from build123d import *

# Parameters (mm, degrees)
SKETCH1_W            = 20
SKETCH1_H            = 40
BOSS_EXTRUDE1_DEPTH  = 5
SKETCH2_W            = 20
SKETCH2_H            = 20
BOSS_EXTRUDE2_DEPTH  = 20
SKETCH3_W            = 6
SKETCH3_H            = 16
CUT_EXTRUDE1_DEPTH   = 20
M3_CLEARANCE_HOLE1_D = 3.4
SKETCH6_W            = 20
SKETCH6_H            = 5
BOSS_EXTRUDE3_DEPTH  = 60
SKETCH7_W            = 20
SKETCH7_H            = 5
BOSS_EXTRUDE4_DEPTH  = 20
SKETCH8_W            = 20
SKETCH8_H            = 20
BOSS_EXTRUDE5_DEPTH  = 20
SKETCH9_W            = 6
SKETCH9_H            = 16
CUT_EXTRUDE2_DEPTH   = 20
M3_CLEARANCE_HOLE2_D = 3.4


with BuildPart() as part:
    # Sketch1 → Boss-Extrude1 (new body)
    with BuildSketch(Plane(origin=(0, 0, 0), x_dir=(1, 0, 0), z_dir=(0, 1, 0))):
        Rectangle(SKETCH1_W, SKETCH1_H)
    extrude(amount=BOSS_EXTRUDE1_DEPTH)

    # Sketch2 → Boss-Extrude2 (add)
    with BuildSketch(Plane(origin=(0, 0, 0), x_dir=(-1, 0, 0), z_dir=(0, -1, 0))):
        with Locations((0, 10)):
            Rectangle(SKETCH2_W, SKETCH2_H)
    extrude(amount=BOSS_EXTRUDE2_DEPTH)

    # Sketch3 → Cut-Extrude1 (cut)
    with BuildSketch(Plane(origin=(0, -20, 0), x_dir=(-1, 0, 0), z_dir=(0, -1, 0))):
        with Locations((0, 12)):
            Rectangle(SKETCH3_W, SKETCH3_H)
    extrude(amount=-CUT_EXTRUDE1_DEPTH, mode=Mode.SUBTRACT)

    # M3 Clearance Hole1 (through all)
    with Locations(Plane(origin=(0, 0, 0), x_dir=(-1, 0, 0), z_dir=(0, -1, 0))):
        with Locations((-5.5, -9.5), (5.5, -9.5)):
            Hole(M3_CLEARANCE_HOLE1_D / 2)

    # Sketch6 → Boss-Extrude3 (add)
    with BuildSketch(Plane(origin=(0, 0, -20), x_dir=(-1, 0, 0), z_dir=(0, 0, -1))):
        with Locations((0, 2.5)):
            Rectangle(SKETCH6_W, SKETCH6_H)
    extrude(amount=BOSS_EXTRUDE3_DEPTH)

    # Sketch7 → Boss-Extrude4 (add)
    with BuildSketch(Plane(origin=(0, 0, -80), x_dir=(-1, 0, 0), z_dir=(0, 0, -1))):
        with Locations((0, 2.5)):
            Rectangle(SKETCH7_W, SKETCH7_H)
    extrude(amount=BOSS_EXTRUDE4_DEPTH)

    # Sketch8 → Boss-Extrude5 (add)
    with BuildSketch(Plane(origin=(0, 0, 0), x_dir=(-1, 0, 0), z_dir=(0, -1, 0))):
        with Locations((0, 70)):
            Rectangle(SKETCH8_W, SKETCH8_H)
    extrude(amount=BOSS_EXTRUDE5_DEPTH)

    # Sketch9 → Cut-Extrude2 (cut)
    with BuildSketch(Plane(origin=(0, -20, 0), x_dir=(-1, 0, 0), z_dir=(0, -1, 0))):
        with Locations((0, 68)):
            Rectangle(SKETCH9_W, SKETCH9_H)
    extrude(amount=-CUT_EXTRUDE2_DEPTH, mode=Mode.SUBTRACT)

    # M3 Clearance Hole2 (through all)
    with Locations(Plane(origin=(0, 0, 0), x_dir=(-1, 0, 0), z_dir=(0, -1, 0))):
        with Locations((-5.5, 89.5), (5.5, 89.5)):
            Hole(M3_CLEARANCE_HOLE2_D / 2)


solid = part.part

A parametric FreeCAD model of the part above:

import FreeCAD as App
import Part
import Sketcher
Q = App.Units.Quantity


def add_polygon(sketch, points):
    """Adds a closed chain of lines whose ends are joined by coincident constraints."""
    first, n = sketch.GeometryCount, len(points)
    for a, b in zip(points, points[1:] + points[:1]):
        sketch.addGeometry(Part.LineSegment(App.Vector(*a, 0), App.Vector(*b, 0)), False)
    for i in range(n):
        sketch.addConstraint(Sketcher.Constraint("Coincident", first + i, 2, first + (i + 1) % n, 1))

doc = App.newDocument("Part")
body = doc.addObject("PartDesign::Body", "Body")

# Sketch on XZ plane
sketch1 = body.newObject("Sketcher::SketchObject", "Sketch")
sketch1.AttachmentSupport = (doc.getObject("XZ_Plane"), [""])
sketch1.MapMode = "FlatFace"
add_polygon(sketch1, [(-10, -20), (-10, 20), (10, 20), (10, -20)])  # lines 0-3
sketch1.addConstraint([
    Sketcher.Constraint("Vertical", 0),
    Sketcher.Constraint("Horizontal", 1),
    Sketcher.Constraint("Vertical", 2),
    Sketcher.Constraint("Horizontal", 3),
    Sketcher.Constraint("Symmetric", 0, 2, 2, 2, -1, 1),
    Sketcher.Constraint("DistanceX", 1, 1, 1, 2, Q("20 mm")),
    Sketcher.Constraint("DistanceY", 0, 1, 0, 2, Q("40 mm")),
])
pad1 = body.newObject("PartDesign::Pad", "Pad")
pad1.Profile = sketch1
pad1.Length = 5
pad1.Reversed = True

# Sketch on XZ plane
sketch2 = body.newObject("Sketcher::SketchObject", "Sketch001")
sketch2.AttachmentSupport = (doc.getObject("XZ_Plane"), [""])
sketch2.MapMode = "FlatFace"
add_polygon(sketch2, [(10, -20), (10, 0), (-10, 0), (-10, -20)])  # lines 0-3
sketch2.addConstraint([
    Sketcher.Constraint("Vertical", 0),
    Sketcher.Constraint("Horizontal", 1),
    Sketcher.Constraint("Vertical", 2),
    Sketcher.Constraint("Horizontal", 3),
    Sketcher.Constraint("Symmetric", 0, 2, 1, 2, -1, 1),
    Sketcher.Constraint("Equal", 3, 0),
    Sketcher.Constraint("DistanceX", 1, 2, 1, 1, Q("20 mm")),
])
pad2 = body.newObject("PartDesign::Pad", "Pad001")
pad2.Profile = sketch2
pad2.Length = 20

# Sketch on XZ plane
sketch3 = body.newObject("Sketcher::SketchObject", "Sketch002")
sketch3.AttachmentSupport = (doc.getObject("XZ_Plane"), [""])
sketch3.MapMode = "FlatFace"
sketch3.AttachmentOffset = App.Placement(App.Vector(0, 0, 20), App.Rotation())
add_polygon(sketch3, [(3, -20), (3, -4), (-3, -4), (-3, -20)])  # lines 0-3
sketch3.addConstraint([
    Sketcher.Constraint("Vertical", 0),
    Sketcher.Constraint("Horizontal", 1),
    Sketcher.Constraint("Vertical", 2),
    Sketcher.Constraint("Horizontal", 3),
    Sketcher.Constraint("DistanceX", 1, 2, 1, 1, Q("6 mm")),
    Sketcher.Constraint("DistanceY", 0, 1, 0, 2, Q("16 mm")),
    Sketcher.Constraint("DistanceX", -1, 1, 0, 2, Q("3 mm")),
    Sketcher.Constraint("DistanceY", 0, 2, -1, 1, Q("4 mm")),
])
pocket1 = body.newObject("PartDesign::Pocket", "Pocket")
pocket1.Profile = sketch3
pocket1.Length = 20

# Sketch on XZ plane
sketch4 = body.newObject("Sketcher::SketchObject", "Sketch003")
sketch4.AttachmentSupport = (doc.getObject("XZ_Plane"), [""])
sketch4.MapMode = "FlatFace"
sketch4.addGeometry([
    Part.Circle(App.Vector(5.5, 9.5, 0), App.Vector(0, 0, 1), 1.7),
    Part.Circle(App.Vector(-5.5, 9.5, 0), App.Vector(0, 0, 1), 1.7),
], False)
sketch4.addConstraint([
    Sketcher.Constraint("Equal", 0, 1),
    Sketcher.Constraint("Symmetric", 0, 3, 1, 3, -2),
    Sketcher.Constraint("Diameter", 0, Q("3.4 mm")),
    Sketcher.Constraint("DistanceX", 1, 3, 0, 3, Q("11 mm")),
    Sketcher.Constraint("DistanceY", -1, 1, 0, 3, Q("9.5 mm")),
])
doc.recompute()
hole = body.newObject("PartDesign::Hole", "Hole")
hole.Profile = sketch4
hole.ThreadType = "None"
hole.Diameter = 3.4
hole.DepthType = "ThroughAll"

# Sketch on XY plane
sketch5 = body.newObject("Sketcher::SketchObject", "Sketch004")
sketch5.AttachmentSupport = (doc.getObject("XY_Plane"), [""])
sketch5.MapMode = "FlatFace"
sketch5.AttachmentOffset = App.Placement(App.Vector(0, 0, -20), App.Rotation())
add_polygon(sketch5, [(10, 5), (10, 0), (-10, 0), (-10, 5)])  # lines 0-3
sketch5.addConstraint([
    Sketcher.Constraint("Vertical", 0),
    Sketcher.Constraint("Horizontal", 1),
    Sketcher.Constraint("Vertical", 2),
    Sketcher.Constraint("Horizontal", 3),
    Sketcher.Constraint("Symmetric", 0, 2, 1, 2, -1, 1),
    Sketcher.Constraint("DistanceX", 1, 2, 1, 1, Q("20 mm")),
    Sketcher.Constraint("DistanceY", 0, 2, 0, 1, Q("5 mm")),
])
pad3 = body.newObject("PartDesign::Pad", "Pad002")
pad3.Profile = sketch5
pad3.Length = 60
pad3.Reversed = True

# Sketch on XY plane
sketch6 = body.newObject("Sketcher::SketchObject", "Sketch005")
sketch6.AttachmentSupport = (doc.getObject("XY_Plane"), [""])
sketch6.MapMode = "FlatFace"
sketch6.AttachmentOffset = App.Placement(App.Vector(0, 0, -80), App.Rotation())
add_polygon(sketch6, [(10, 5), (10, 0), (-10, 0), (-10, 5)])  # lines 0-3
sketch6.addConstraint([
    Sketcher.Constraint("Vertical", 0),
    Sketcher.Constraint("Horizontal", 1),
    Sketcher.Constraint("Vertical", 2),
    Sketcher.Constraint("Horizontal", 3),
    Sketcher.Constraint("Symmetric", 0, 2, 1, 2, -1, 1),
    Sketcher.Constraint("DistanceX", 1, 2, 1, 1, Q("20 mm")),
    Sketcher.Constraint("DistanceY", 0, 2, 0, 1, Q("5 mm")),
])
pad4 = body.newObject("PartDesign::Pad", "Pad003")
pad4.Profile = sketch6
pad4.Length = 20
pad4.Reversed = True

# Sketch on XZ plane
sketch7 = body.newObject("Sketcher::SketchObject", "Sketch006")
sketch7.AttachmentSupport = (doc.getObject("XZ_Plane"), [""])
sketch7.MapMode = "FlatFace"
add_polygon(sketch7, [(10, -80), (10, -60), (-10, -60), (-10, -80)])  # lines 0-3
sketch7.addConstraint([
    Sketcher.Constraint("Vertical", 0),
    Sketcher.Constraint("Horizontal", 1),
    Sketcher.Constraint("Vertical", 2),
    Sketcher.Constraint("Horizontal", 3),
    Sketcher.Constraint("Equal", 3, 0),
    Sketcher.Constraint("DistanceX", 1, 2, 1, 1, Q("20 mm")),
    Sketcher.Constraint("DistanceX", -1, 1, 0, 2, Q("10 mm")),
    Sketcher.Constraint("DistanceY", 0, 2, -1, 1, Q("60 mm")),
])
pad5 = body.newObject("PartDesign::Pad", "Pad004")
pad5.Profile = sketch7
pad5.Length = 20

# Sketch on XZ plane
sketch8 = body.newObject("Sketcher::SketchObject", "Sketch007")
sketch8.AttachmentSupport = (doc.getObject("XZ_Plane"), [""])
sketch8.MapMode = "FlatFace"
sketch8.AttachmentOffset = App.Placement(App.Vector(0, 0, 20), App.Rotation())
add_polygon(sketch8, [(3, -76), (3, -60), (-3, -60), (-3, -76)])  # lines 0-3
sketch8.addConstraint([
    Sketcher.Constraint("Vertical", 0),
    Sketcher.Constraint("Horizontal", 1),
    Sketcher.Constraint("Vertical", 2),
    Sketcher.Constraint("Horizontal", 3),
    Sketcher.Constraint("DistanceX", 1, 2, 1, 1, Q("6 mm")),
    Sketcher.Constraint("DistanceY", 0, 1, 0, 2, Q("16 mm")),
    Sketcher.Constraint("DistanceX", -1, 1, 0, 2, Q("3 mm")),
    Sketcher.Constraint("DistanceY", 0, 2, -1, 1, Q("60 mm")),
])
pocket2 = body.newObject("PartDesign::Pocket", "Pocket001")
pocket2.Profile = sketch8
pocket2.Length = 20

# Sketch on XZ plane
sketch9 = body.newObject("Sketcher::SketchObject", "Sketch008")
sketch9.AttachmentSupport = (doc.getObject("XZ_Plane"), [""])
sketch9.MapMode = "FlatFace"
sketch9.addGeometry([
    Part.Circle(App.Vector(5.5, -89.5, 0), App.Vector(0, 0, 1), 1.7),
    Part.Circle(App.Vector(-5.5, -89.5, 0), App.Vector(0, 0, 1), 1.7),
], False)
sketch9.addConstraint([
    Sketcher.Constraint("Equal", 0, 1),
    Sketcher.Constraint("Symmetric", 0, 3, 1, 3, -2),
    Sketcher.Constraint("Diameter", 0, Q("3.4 mm")),
    Sketcher.Constraint("DistanceX", 1, 3, 0, 3, Q("11 mm")),
    Sketcher.Constraint("DistanceY", 0, 3, -1, 1, Q("89.5 mm")),
])
doc.recompute()
hole2 = body.newObject("PartDesign::Hole", "Hole001")
hole2.Profile = sketch9
hole2.ThreadType = "None"
hole2.Diameter = 3.4
hole2.DepthType = "ThroughAll"

doc.recompute()
